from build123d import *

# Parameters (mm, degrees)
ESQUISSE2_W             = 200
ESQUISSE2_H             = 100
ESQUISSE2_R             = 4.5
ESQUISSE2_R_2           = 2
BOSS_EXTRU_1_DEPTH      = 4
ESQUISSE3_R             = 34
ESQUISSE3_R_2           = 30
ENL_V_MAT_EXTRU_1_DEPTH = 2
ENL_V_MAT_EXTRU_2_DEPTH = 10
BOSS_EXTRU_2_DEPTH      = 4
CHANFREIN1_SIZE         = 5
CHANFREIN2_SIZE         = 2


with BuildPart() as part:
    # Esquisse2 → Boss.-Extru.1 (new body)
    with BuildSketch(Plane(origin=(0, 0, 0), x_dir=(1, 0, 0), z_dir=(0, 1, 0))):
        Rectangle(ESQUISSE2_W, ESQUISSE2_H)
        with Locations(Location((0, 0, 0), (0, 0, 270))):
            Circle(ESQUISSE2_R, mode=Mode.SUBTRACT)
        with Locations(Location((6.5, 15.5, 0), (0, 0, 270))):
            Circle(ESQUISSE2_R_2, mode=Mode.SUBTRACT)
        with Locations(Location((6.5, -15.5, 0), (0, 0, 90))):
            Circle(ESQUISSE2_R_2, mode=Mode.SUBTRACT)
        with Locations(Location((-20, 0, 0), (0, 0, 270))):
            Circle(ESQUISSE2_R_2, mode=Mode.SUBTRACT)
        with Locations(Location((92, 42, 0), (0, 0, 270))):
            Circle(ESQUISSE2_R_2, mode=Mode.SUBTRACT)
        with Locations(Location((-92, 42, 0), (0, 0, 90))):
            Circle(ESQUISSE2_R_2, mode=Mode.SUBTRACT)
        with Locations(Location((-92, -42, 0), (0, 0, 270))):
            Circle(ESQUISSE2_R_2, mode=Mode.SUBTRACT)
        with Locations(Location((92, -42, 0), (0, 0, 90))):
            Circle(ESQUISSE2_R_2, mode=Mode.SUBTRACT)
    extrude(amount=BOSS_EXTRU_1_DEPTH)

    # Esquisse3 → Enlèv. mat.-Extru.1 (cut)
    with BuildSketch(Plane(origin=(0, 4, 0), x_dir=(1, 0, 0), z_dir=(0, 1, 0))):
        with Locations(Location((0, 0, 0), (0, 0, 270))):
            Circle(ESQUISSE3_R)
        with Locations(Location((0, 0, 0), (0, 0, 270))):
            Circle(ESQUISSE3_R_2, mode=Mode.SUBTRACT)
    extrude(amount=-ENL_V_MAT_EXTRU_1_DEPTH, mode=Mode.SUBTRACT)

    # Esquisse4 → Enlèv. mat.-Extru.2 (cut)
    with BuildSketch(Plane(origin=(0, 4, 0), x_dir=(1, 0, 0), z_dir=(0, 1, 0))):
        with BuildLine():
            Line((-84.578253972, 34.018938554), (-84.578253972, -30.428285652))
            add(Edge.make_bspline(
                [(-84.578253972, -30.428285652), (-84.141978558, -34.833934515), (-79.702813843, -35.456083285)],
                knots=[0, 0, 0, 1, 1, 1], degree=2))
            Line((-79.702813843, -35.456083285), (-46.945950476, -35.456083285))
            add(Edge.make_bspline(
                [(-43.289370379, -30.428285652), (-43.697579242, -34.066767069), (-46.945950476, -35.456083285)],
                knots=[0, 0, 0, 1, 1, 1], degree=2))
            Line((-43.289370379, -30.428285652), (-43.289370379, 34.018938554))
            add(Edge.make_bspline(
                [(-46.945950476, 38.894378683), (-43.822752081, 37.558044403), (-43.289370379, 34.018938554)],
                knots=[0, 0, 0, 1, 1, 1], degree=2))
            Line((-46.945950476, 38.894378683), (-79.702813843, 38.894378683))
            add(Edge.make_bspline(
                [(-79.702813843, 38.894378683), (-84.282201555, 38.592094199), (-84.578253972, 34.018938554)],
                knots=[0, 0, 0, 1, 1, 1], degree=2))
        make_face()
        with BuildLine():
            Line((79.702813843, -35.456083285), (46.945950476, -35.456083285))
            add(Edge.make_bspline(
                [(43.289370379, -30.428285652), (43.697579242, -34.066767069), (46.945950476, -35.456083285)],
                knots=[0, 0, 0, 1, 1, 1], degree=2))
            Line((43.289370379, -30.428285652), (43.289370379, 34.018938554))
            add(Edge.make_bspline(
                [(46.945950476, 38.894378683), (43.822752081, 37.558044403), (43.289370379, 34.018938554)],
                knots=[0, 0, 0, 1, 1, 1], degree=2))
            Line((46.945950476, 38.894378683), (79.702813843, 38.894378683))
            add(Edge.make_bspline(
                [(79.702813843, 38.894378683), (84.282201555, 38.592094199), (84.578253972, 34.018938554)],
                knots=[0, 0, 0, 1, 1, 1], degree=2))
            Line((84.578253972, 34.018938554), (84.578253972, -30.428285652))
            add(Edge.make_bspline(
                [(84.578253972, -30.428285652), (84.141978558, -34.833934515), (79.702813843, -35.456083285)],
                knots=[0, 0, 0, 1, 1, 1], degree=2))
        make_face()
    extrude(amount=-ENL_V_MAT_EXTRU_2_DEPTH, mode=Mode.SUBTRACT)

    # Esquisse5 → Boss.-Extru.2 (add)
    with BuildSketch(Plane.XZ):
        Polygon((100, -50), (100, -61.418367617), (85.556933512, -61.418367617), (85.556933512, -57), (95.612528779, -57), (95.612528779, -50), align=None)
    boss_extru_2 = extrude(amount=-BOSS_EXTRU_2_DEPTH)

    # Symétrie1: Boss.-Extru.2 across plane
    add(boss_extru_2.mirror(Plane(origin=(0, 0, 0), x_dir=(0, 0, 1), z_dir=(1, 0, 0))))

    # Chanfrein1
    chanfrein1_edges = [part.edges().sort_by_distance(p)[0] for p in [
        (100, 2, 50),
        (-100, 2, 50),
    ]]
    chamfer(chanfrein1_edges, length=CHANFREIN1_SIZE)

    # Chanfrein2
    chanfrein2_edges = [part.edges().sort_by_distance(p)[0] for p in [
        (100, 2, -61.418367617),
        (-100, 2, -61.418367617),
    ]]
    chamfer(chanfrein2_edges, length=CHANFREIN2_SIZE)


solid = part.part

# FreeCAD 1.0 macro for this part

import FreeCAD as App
import Part
import Sketcher

V = App.Vector
Q = App.Units.Quantity


def edges_at(feature, points):
    """Names of the edges that pass closest to the given points."""
    edges = feature.Shape.Edges
    near = lambda p: min(range(len(edges)), key=lambda i: edges[i].distToShape(Part.Vertex(*p))[0])
    return sorted({f"Edge{near(p) + 1}" for p in points})


def add_polygon(sketch, points):
    """Adds a closed chain of lines whose ends are joined by coincident constraints."""
    first, n = sketch.GeometryCount, len(points)
    for a, b in zip(points, points[1:] + points[:1]):
        sketch.addGeometry(Part.LineSegment(App.Vector(*a, 0), App.Vector(*b, 0)), False)
    for i in range(n):
        sketch.addConstraint(Sketcher.Constraint("Coincident", first + i, 2, first + (i + 1) % n, 1))

doc = App.newDocument("Part")
body = doc.addObject("PartDesign::Body", "Body")

sketch1 = body.newObject("Sketcher::SketchObject", "Sketch")
sketch1.AttachmentSupport = (doc.getObject("XZ_Plane"), [""])
sketch1.MapMode = "FlatFace"
add_polygon(sketch1, [(-100, -50), (-100, 50), (100, 50), (100, -50)])
sketch1.addGeometry(Part.Circle(V(-92, 42, 0), V(0, 0, 1), 2), False)
sketch1.addGeometry(Part.Circle(V(92, 42, 0), V(0, 0, 1), 2), False)
sketch1.addGeometry(Part.Circle(V(6.5, 15.5, 0), V(0, 0, 1), 2), False)
sketch1.addGeometry(Part.Circle(V(-20, 0, 0), V(0, 0, 1), 2), False)
sketch1.addGeometry(Part.Circle(V(-92, -42, 0), V(0, 0, 1), 2), False)
sketch1.addGeometry(Part.Circle(V(0, 0, 0), V(0, 0, 1), 4.5), False)
sketch1.addGeometry(Part.Circle(V(6.5, -15.5, 0), V(0, 0, 1), 2), False)
sketch1.addGeometry(Part.Circle(V(92, -42, 0), V(0, 0, 1), 2), False)
sketch1.addConstraint(Sketcher.Constraint("Vertical", 0))
sketch1.addConstraint(Sketcher.Constraint("Horizontal", 1))
sketch1.addConstraint(Sketcher.Constraint("Vertical", 2))
sketch1.addConstraint(Sketcher.Constraint("Horizontal", 3))
sketch1.addConstraint(Sketcher.Constraint("Coincident", 9, 3, -1, 1))
sketch1.addConstraint(Sketcher.Constraint("Equal", 4, 5))
sketch1.addConstraint(Sketcher.Constraint("Equal", 5, 6))
sketch1.addConstraint(Sketcher.Constraint("Equal", 6, 7))
sketch1.addConstraint(Sketcher.Constraint("Equal", 7, 8))
sketch1.addConstraint(Sketcher.Constraint("Equal", 8, 10))
sketch1.addConstraint(Sketcher.Constraint("Equal", 10, 11))
sketch1.addConstraint(Sketcher.Constraint("Symmetric", 5, 3, 8, 3, -1, 1))
sketch1.addConstraint(Sketcher.Constraint("Symmetric", 4, 3, 11, 3, -1, 1))
sketch1.addConstraint(Sketcher.Constraint("Symmetric", 0, 2, 2, 2, -1, 1))
sketch1.addConstraint(Sketcher.Constraint("Symmetric", 4, 3, 5, 3, -2))
sketch1.addConstraint(Sketcher.Constraint("Symmetric", 6, 3, 10, 3, -1))
sketch1.addConstraint(Sketcher.Constraint("PointOnObject", 7, 3, -1))
sketch1.addConstraint(Sketcher.Constraint("Diameter", 4, Q("4 mm")))
sketch1.addConstraint(Sketcher.Constraint("Diameter", 9, Q("9 mm")))
sketch1.addConstraint(Sketcher.Constraint("DistanceX", 1, 1, 1, 2, Q("200 mm")))
sketch1.addConstraint(Sketcher.Constraint("DistanceY", 0, 1, 0, 2, Q("100 mm")))
sketch1.addConstraint(Sketcher.Constraint("DistanceX", 4, 3, -1, 1, Q("92 mm")))
sketch1.addConstraint(Sketcher.Constraint("DistanceY", -1, 1, 4, 3, Q("42 mm")))
sketch1.addConstraint(Sketcher.Constraint("DistanceX", 7, 3, -1, 1, Q("20 mm")))
sketch1.addConstraint(Sketcher.Constraint("DistanceY", 10, 3, 6, 3, Q("31 mm")))
sketch1.addConstraint(Sketcher.Constraint("DistanceX", -1, 1, 6, 3, Q("6.5 mm")))
pad1 = body.newObject("PartDesign::Pad", "Pad")
pad1.Profile = sketch1
pad1.Length = 4
pad1.Reversed = True

sketch2 = body.newObject("Sketcher::SketchObject", "Sketch001")
sketch2.AttachmentSupport = (doc.getObject("XZ_Plane"), [""])
sketch2.MapMode = "FlatFace"
sketch2.AttachmentOffset = App.Placement(V(0, 0, -4), App.Rotation())
sketch2.addGeometry(Part.Circle(V(0, 0, 0), V(0, 0, 1), 34), False)
sketch2.addGeometry(Part.Circle(V(0, 0, 0), V(0, 0, 1), 30), False)
sketch2.addConstraint(Sketcher.Constraint("Coincident", 0, 3, -1, 1))
sketch2.addConstraint(Sketcher.Constraint("Coincident", 1, 3, -1, 1))
sketch2.addConstraint(Sketcher.Constraint("Diameter", 0, Q("68 mm")))
sketch2.addConstraint(Sketcher.Constraint("Diameter", 1, Q("60 mm")))
pocket1 = body.newObject("PartDesign::Pocket", "Pocket")
pocket1.Profile = sketch2
pocket1.Length = 2
pocket1.Reversed = True

sketch3 = body.newObject("Sketcher::SketchObject", "Sketch002")
sketch3.AttachmentSupport = (doc.getObject("XZ_Plane"), [""])
sketch3.MapMode = "FlatFace"
sketch3.AttachmentOffset = App.Placement(V(0, 0, -4), App.Rotation())
sketch3.addGeometry(Part.LineSegment(V(-84.578254, -34.018939, 0), V(-84.578254, 30.428286, 0)), False)
sketch3.addGeometry(Part.BSplineCurve([V(-84.578254, 30.428286, 0), V(-84.141979, 34.833935, 0), V(-79.702814, 35.456083, 0)], [3, 3], [0, 1], False, 2, [1, 1, 1], False), False)
sketch3.addGeometry(Part.LineSegment(V(-79.702814, 35.456083, 0), V(-46.94595, 35.456083, 0)), False)
sketch3.addGeometry(Part.BSplineCurve([V(-43.28937, 30.428286, 0), V(-43.697579, 34.066767, 0), V(-46.94595, 35.456083, 0)], [3, 3], [0, 1], False, 2, [1, 1, 1], False), False)
sketch3.addGeometry(Part.LineSegment(V(-43.28937, 30.428286, 0), V(-43.28937, -34.018939, 0)), False)
sketch3.addGeometry(Part.BSplineCurve([V(-46.94595, -38.894379, 0), V(-43.822752, -37.558044, 0), V(-43.28937, -34.018939, 0)], [3, 3], [0, 1], False, 2, [1, 1, 1], False), False)
sketch3.addGeometry(Part.LineSegment(V(-46.94595, -38.894379, 0), V(-79.702814, -38.894379, 0)), False)
sketch3.addGeometry(Part.BSplineCurve([V(-79.702814, -38.894379, 0), V(-84.282202, -38.592094, 0), V(-84.578254, -34.018939, 0)], [3, 3], [0, 1], False, 2, [1, 1, 1], False), False)
sketch3.addGeometry(Part.LineSegment(V(46.94595, 35.456083, 0), V(79.702814, 35.456083, 0)), False)
sketch3.addGeometry(Part.BSplineCurve([V(84.578254, 30.428286, 0), V(84.141979, 34.833935, 0), V(79.702814, 35.456083, 0)], [3, 3], [0, 1], False, 2, [1, 1, 1], False), False)
sketch3.addGeometry(Part.LineSegment(V(84.578254, 30.428286, 0), V(84.578254, -34.018939, 0)), False)
sketch3.addGeometry(Part.BSplineCurve([V(79.702814, -38.894379, 0), V(84.282202, -38.592094, 0), V(84.578254, -34.018939, 0)], [3, 3], [0, 1], False, 2, [1, 1, 1], False), False)
sketch3.addGeometry(Part.LineSegment(V(79.702814, -38.894379, 0), V(46.94595, -38.894379, 0)), False)
sketch3.addGeometry(Part.BSplineCurve([V(46.94595, -38.894379, 0), V(43.822752, -37.558044, 0), V(43.28937, -34.018939, 0)], [3, 3], [0, 1], False, 2, [1, 1, 1], False), False)
sketch3.addGeometry(Part.LineSegment(V(43.28937, -34.018939, 0), V(43.28937, 30.428286, 0)), False)
sketch3.addGeometry(Part.BSplineCurve([V(43.28937, 30.428286, 0), V(43.697579, 34.066767, 0), V(46.94595, 35.456083, 0)], [3, 3], [0, 1], False, 2, [1, 1, 1], False), False)
sketch3.addConstraint(Sketcher.Constraint("Block", 1))
sketch3.addConstraint(Sketcher.Constraint("Block", 3))
sketch3.addConstraint(Sketcher.Constraint("Block", 5))
sketch3.addConstraint(Sketcher.Constraint("Block", 7))
sketch3.addConstraint(Sketcher.Constraint("Block", 9))
sketch3.addConstraint(Sketcher.Constraint("Block", 11))
sketch3.addConstraint(Sketcher.Constraint("Block", 13))
sketch3.addConstraint(Sketcher.Constraint("Block", 15))
sketch3.addConstraint(Sketcher.Constraint("Coincident", 0, 2, 1, 1))
sketch3.addConstraint(Sketcher.Constraint("Coincident", 1, 2, 2, 1))
sketch3.addConstraint(Sketcher.Constraint("Coincident", 2, 2, 3, 2))
sketch3.addConstraint(Sketcher.Constraint("Coincident", 3, 1, 4, 1))
sketch3.addConstraint(Sketcher.Constraint("Coincident", 4, 2, 5, 2))
sketch3.addConstraint(Sketcher.Constraint("Coincident", 5, 1, 6, 1))
sketch3.addConstraint(Sketcher.Constraint("Coincident", 6, 2, 7, 1))
sketch3.addConstraint(Sketcher.Constraint("Coincident", 7, 2, 0, 1))
sketch3.addConstraint(Sketcher.Constraint("Coincident", 8, 2, 9, 2))
sketch3.addConstraint(Sketcher.Constraint("Coincident", 9, 1, 10, 1))
sketch3.addConstraint(Sketcher.Constraint("Coincident", 10, 2, 11, 2))
sketch3.addConstraint(Sketcher.Constraint("Coincident", 11, 1, 12, 1))
sketch3.addConstraint(Sketcher.Constraint("Coincident", 12, 2, 13, 1))
sketch3.addConstraint(Sketcher.Constraint("Coincident", 13, 2, 14, 1))
sketch3.addConstraint(Sketcher.Constraint("Coincident", 14, 2, 15, 1))
sketch3.addConstraint(Sketcher.Constraint("Coincident", 15, 2, 8, 1))
pocket2 = body.newObject("PartDesign::Pocket", "Pocket001")
pocket2.Profile = sketch3
pocket2.Length = 10
pocket2.Reversed = True

sketch4 = body.newObject("Sketcher::SketchObject", "Sketch003")
sketch4.AttachmentSupport = (doc.getObject("XZ_Plane"), [""])
sketch4.MapMode = "FlatFace"
add_polygon(sketch4, [(100, -61.418368), (100, -50), (95.612529, -50), (95.612529, -57), (85.556934, -57), (85.556934, -61.418368)])
sketch4.addConstraint(Sketcher.Constraint("Vertical", 0))
sketch4.addConstraint(Sketcher.Constraint("Horizontal", 1))
sketch4.addConstraint(Sketcher.Constraint("Vertical", 2))
sketch4.addConstraint(Sketcher.Constraint("Horizontal", 3))
sketch4.addConstraint(Sketcher.Constraint("Vertical", 4))
sketch4.addConstraint(Sketcher.Constraint("Horizontal", 5))
sketch4.addConstraint(Sketcher.Constraint("DistanceY", 2, 2, 2, 1, Q("7 mm")))
sketch4.addConstraint(Sketcher.Constraint("DistanceX", -1, 1, 0, 2, Q("100 mm")))
sketch4.addConstraint(Sketcher.Constraint("DistanceY", 0, 2, -1, 1, Q("50 mm")))
sketch4.addConstraint(Sketcher.Constraint("DistanceX", 1, 2, 1, 1, Q("4.387471 mm")))
sketch4.addConstraint(Sketcher.Constraint("DistanceX", 3, 2, 3, 1, Q("10.055595 mm")))
sketch4.addConstraint(Sketcher.Constraint("DistanceY", 0, 1, 0, 2, Q("11.418368 mm")))
pad2 = body.newObject("PartDesign::Pad", "Pad001")
pad2.Profile = sketch4
pad2.Length = 4
pad2.Reversed = True
doc.recompute()

mirrored = body.newObject("PartDesign::Mirrored", "Mirrored")
mirrored.Originals = [pad2]
mirrored.MirrorPlane = (doc.getObject("YZ_Plane"), [""])
body.Tip = mirrored
doc.recompute()

chamfer = body.newObject("PartDesign::Chamfer", "Chamfer")
chamfer.Base = (mirrored, edges_at(mirrored, [(100, 2, 50), (-100, 2, 50)]))
chamfer.Size = 5
doc.recompute()

chamfer2 = body.newObject("PartDesign::Chamfer", "Chamfer001")
chamfer2.Base = (chamfer, edges_at(chamfer, [(100, 2, -61.418), (-100, 2, -61.418)]))
chamfer2.Size = 2

doc.recompute()
